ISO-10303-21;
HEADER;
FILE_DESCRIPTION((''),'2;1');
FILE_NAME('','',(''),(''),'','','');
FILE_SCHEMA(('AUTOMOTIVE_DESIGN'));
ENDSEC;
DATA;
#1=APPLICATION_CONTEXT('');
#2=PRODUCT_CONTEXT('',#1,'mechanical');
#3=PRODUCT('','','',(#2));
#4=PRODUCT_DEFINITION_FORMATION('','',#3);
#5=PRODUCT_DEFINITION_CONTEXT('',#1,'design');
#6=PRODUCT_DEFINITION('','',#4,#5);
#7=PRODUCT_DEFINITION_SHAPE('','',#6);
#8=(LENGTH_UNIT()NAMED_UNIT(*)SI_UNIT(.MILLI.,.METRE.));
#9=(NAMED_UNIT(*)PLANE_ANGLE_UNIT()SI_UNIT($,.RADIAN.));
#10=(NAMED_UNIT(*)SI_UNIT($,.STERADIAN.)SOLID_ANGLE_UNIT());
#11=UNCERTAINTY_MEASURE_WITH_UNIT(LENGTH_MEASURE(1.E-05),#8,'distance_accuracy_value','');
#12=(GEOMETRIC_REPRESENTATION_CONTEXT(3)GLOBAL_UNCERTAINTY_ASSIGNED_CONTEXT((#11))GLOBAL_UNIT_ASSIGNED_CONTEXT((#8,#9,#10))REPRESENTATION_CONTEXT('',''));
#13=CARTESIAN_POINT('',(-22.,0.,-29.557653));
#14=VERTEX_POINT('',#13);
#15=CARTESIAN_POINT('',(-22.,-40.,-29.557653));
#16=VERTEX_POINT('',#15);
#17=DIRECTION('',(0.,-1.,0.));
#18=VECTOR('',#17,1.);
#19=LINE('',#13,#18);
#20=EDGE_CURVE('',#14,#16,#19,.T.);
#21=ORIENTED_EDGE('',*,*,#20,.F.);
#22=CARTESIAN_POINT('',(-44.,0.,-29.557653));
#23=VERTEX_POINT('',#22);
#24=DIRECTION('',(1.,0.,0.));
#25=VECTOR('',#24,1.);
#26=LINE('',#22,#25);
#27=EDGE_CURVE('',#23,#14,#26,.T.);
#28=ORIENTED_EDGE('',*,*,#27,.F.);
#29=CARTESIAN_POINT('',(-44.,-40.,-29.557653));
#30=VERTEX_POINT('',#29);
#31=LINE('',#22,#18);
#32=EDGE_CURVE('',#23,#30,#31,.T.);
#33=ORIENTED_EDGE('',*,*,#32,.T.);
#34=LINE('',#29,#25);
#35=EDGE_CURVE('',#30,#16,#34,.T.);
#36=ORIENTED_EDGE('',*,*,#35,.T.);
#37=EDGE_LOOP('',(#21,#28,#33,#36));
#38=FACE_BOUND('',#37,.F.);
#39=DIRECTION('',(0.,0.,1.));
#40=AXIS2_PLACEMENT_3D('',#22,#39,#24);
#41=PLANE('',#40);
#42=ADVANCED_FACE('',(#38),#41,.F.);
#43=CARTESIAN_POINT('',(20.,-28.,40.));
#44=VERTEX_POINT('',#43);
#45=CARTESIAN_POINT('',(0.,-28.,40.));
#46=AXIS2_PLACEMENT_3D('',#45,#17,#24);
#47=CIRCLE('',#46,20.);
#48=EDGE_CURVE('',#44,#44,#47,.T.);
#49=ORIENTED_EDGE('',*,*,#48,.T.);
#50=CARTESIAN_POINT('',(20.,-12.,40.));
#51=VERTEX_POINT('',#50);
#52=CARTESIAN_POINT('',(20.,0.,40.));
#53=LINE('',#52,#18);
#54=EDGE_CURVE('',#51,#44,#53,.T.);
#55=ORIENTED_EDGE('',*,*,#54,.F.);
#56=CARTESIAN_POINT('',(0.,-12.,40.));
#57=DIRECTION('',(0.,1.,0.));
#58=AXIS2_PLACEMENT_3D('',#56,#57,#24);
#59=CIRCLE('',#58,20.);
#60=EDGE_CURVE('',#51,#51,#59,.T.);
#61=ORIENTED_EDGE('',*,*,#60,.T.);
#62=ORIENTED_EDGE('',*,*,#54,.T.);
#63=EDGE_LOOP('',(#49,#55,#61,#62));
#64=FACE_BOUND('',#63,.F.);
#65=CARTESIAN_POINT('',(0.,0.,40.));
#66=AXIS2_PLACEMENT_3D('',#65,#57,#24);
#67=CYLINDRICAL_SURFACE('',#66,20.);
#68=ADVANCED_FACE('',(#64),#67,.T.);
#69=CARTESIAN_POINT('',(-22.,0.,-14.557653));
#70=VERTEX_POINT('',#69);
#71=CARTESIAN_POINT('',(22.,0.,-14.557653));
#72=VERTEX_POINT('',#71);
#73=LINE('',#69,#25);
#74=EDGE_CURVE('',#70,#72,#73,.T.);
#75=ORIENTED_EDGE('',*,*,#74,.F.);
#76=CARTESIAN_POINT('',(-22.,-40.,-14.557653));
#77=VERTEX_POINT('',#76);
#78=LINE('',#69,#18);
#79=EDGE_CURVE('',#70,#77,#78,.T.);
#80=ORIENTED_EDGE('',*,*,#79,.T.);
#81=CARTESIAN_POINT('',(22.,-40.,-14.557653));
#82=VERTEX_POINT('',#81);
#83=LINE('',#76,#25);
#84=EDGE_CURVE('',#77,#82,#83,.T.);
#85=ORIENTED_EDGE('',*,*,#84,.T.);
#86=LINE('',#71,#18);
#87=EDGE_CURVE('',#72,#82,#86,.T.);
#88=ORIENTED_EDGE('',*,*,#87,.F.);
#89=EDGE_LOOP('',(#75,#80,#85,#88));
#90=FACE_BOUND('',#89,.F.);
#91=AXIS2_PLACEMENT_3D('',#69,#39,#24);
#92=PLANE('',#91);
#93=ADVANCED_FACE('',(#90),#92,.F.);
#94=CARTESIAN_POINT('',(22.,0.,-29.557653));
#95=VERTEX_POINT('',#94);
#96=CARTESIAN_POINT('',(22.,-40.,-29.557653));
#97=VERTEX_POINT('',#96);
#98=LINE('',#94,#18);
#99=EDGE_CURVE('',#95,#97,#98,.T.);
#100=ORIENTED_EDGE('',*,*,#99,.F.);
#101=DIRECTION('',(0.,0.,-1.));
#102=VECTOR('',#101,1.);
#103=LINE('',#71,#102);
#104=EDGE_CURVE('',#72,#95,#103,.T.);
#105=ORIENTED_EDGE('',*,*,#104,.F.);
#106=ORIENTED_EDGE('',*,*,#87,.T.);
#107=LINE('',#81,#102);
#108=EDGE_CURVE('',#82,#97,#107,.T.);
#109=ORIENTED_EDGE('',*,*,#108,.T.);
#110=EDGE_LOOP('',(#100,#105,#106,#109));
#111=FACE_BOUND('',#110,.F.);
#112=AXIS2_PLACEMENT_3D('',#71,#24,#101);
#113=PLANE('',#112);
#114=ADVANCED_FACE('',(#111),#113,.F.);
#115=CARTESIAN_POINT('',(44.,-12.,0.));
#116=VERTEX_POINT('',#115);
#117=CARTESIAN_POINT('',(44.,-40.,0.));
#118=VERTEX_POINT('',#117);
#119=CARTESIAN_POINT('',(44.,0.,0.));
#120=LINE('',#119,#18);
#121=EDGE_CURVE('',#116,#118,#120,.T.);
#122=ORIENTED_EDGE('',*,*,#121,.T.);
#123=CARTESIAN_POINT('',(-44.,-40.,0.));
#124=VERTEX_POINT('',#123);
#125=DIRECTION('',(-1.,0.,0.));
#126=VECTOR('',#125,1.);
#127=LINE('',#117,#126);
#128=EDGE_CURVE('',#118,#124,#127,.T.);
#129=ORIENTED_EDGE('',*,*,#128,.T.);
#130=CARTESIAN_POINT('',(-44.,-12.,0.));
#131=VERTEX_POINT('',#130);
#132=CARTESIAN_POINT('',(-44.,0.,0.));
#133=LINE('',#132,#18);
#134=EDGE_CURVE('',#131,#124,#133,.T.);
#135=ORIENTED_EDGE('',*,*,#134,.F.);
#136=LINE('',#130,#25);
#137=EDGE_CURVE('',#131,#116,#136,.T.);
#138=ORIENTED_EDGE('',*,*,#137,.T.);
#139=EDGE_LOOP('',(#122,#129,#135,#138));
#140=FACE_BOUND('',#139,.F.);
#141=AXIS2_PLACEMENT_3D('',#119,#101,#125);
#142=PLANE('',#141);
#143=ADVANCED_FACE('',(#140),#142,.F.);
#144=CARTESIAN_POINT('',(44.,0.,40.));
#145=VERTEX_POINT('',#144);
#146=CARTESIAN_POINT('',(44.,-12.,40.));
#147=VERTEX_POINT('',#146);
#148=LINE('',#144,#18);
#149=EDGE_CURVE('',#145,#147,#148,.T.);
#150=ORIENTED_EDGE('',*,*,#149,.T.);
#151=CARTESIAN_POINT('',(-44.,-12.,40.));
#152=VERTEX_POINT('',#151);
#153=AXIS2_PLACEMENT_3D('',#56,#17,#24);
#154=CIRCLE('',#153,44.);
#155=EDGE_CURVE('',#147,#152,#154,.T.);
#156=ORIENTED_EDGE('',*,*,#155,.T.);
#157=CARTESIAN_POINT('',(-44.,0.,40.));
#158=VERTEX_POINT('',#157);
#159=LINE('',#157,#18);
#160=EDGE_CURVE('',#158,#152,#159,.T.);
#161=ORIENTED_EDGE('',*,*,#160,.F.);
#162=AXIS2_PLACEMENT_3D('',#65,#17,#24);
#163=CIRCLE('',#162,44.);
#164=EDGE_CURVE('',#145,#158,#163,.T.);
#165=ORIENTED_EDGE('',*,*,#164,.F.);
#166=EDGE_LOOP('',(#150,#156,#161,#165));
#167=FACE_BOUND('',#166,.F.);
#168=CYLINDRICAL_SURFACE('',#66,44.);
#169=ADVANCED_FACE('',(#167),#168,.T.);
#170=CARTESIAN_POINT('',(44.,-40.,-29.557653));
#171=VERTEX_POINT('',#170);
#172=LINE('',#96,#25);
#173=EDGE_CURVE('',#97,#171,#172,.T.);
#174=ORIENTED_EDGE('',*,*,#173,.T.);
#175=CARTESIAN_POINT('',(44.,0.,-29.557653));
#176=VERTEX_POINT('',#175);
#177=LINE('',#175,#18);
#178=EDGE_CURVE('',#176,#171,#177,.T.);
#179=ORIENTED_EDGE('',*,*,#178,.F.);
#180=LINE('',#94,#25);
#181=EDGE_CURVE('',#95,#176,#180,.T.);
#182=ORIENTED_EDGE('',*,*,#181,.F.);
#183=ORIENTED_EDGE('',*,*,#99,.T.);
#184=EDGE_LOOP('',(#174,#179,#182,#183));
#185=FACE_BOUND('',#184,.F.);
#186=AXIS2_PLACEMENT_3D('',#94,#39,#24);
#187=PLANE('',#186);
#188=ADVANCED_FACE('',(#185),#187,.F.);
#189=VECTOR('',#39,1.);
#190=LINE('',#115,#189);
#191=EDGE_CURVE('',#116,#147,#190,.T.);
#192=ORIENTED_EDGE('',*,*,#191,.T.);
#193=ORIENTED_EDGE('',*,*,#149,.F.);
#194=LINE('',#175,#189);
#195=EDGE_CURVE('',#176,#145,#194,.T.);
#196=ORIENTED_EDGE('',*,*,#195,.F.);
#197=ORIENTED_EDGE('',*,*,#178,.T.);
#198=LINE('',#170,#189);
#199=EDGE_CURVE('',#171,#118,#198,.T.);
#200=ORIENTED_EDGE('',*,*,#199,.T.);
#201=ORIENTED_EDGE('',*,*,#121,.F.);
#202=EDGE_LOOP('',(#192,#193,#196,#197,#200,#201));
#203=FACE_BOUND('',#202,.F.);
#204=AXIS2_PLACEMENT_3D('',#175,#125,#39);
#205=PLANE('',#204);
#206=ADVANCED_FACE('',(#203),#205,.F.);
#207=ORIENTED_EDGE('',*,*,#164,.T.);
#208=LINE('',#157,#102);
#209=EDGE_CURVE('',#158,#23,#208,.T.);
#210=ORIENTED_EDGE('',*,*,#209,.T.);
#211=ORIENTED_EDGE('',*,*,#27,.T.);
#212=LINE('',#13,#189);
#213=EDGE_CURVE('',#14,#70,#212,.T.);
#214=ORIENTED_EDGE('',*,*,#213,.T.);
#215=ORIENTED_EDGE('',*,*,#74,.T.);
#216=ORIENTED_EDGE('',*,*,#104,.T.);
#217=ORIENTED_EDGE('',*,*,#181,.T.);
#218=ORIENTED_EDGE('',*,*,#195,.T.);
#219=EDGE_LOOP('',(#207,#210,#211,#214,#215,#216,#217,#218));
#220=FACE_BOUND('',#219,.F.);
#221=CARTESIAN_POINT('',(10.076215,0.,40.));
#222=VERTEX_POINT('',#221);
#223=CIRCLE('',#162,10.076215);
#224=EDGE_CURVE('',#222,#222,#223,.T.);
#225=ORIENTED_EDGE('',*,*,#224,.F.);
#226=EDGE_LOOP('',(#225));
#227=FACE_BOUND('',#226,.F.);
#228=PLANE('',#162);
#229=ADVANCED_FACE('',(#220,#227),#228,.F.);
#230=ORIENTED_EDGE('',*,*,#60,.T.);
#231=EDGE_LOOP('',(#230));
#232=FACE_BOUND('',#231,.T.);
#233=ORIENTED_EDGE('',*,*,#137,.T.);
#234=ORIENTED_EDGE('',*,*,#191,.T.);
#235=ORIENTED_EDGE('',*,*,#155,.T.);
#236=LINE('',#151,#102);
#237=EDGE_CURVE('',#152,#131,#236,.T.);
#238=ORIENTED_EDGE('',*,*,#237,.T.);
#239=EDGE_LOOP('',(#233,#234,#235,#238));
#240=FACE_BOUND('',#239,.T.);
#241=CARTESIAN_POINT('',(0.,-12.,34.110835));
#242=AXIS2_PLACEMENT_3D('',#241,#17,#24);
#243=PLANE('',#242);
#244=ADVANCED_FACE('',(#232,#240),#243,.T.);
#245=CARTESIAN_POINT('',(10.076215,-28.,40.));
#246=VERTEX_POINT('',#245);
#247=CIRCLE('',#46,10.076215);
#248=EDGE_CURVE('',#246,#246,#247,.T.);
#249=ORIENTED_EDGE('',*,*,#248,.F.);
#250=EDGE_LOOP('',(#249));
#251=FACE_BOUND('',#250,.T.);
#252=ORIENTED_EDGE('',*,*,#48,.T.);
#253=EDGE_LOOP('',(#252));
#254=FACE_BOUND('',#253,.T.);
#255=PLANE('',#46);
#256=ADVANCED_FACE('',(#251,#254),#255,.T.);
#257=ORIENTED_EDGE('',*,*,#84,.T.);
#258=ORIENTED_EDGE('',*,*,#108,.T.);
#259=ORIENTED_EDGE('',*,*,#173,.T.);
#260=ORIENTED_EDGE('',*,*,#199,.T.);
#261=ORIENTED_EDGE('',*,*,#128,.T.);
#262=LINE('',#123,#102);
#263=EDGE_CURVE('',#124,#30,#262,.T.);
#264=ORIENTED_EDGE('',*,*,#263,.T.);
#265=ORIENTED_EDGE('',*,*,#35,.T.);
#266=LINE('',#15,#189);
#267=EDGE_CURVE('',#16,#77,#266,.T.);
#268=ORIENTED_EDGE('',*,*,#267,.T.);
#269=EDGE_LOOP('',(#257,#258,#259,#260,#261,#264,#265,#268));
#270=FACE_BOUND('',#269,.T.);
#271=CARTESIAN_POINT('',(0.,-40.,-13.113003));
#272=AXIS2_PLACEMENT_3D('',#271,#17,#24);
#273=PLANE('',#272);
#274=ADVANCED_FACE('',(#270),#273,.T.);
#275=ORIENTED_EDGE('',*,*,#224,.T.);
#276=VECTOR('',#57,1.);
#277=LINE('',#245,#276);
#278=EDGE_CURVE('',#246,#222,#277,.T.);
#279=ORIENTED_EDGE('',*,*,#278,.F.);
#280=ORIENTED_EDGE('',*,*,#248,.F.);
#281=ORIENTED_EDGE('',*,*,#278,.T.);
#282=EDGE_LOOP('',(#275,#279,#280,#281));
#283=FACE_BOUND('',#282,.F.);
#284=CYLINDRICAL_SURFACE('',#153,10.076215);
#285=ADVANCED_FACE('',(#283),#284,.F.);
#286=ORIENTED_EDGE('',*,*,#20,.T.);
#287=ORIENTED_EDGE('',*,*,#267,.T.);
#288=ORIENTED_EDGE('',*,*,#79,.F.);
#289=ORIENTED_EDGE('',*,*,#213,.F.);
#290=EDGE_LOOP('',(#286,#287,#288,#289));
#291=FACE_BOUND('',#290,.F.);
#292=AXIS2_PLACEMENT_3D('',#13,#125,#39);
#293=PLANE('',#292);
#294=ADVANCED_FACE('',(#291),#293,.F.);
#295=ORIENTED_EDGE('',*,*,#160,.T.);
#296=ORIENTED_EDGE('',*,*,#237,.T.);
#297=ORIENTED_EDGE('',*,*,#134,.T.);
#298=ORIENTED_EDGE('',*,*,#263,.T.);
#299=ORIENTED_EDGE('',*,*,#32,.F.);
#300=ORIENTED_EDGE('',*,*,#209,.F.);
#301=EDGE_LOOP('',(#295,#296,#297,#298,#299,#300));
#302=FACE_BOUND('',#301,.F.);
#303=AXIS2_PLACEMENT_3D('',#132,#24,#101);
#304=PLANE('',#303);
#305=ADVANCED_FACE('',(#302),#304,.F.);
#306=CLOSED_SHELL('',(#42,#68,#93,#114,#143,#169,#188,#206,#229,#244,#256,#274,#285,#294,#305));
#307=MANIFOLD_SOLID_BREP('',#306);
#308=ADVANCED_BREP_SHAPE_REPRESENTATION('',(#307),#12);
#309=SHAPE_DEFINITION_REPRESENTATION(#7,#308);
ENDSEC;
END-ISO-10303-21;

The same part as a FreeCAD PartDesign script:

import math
import FreeCAD as App
import Part
import Sketcher

V = App.Vector


def add_polygon(sketch, points):
    """Adds a closed chain of lines whose ends are joined by coincident constraints."""
    first, n = sketch.GeometryCount, len(points)
    for a, b in zip(points, points[1:] + points[:1]):
        sketch.addGeometry(Part.LineSegment(App.Vector(*a, 0), App.Vector(*b, 0)), False)
    for i in range(n):
        sketch.addConstraint(Sketcher.Constraint("Coincident", first + i, 2, first + (i + 1) % n, 1))

doc = App.newDocument("Part")
body = doc.addObject("PartDesign::Body", "Body")

sketch1 = body.newObject("Sketcher::SketchObject", "Sketch")
sketch1.AttachmentSupport = (doc.getObject("XZ_Plane"), [""])
sketch1.MapMode = "FlatFace"
sketch1.addGeometry([
    Part.LineSegment(V(-44, 40, 0), V(-44, 0, 0)),
    Part.LineSegment(V(-44, 0, 0), V(44, 0, 0)),
    Part.LineSegment(V(44, 0, 0), V(44, 40, 0)),
    Part.ArcOfCircle(Part.Circle(V(0, 40, 0), V(0, 0, 1), 44), math.radians(0), math.radians(180)),
], False)
sketch1.addConstraint([
    Sketcher.Constraint("Coincident", 0, 2, 1, 1),
    Sketcher.Constraint("Coincident", 1, 2, 2, 1),
    Sketcher.Constraint("Tangent", 2, 2, 3, 1),
    Sketcher.Constraint("Tangent", 3, 2, 0, 1),
    Sketcher.Constraint("Vertical", 0),
    Sketcher.Constraint("Horizontal", 1),
    Sketcher.Constraint("Vertical", 2),
    Sketcher.Constraint("Symmetric", 0, 2, 1, 2, -1, 1),
    Sketcher.Constraint("Radius", 3, 44.0),
    Sketcher.Constraint("DistanceY", 0, 2, 0, 1, 40.0),
])
pad1 = body.newObject("PartDesign::Pad", "Pad")
pad1.Profile = sketch1
pad1.Length = 12

sketch2 = body.newObject("Sketcher::SketchObject", "Sketch001")
sketch2.AttachmentSupport = (doc.getObject("XZ_Plane"), [""])
sketch2.MapMode = "FlatFace"
add_polygon(sketch2, [(44, 0), (-44, 0), (-44, -29.557653), (-22, -29.557653), (-22, -14.557653), (22, -14.557653), (22, -29.557653), (44, -29.557653)])
sketch2.addConstraint([
    Sketcher.Constraint("Horizontal", 0),
    Sketcher.Constraint("Vertical", 1),
    Sketcher.Constraint("Horizontal", 2),
    Sketcher.Constraint("Vertical", 3),
    Sketcher.Constraint("Horizontal", 4),
    Sketcher.Constraint("Vertical", 5),
    Sketcher.Constraint("Horizontal", 6),
    Sketcher.Constraint("Vertical", 7),
    Sketcher.Constraint("Symmetric", 0, 2, 7, 2, -1, 1),
    Sketcher.Constraint("Symmetric", 2, 2, 5, 2, -2),
    Sketcher.Constraint("DistanceX", 0, 2, 0, 1, 88.0),
    Sketcher.Constraint("DistanceX", 2, 1, 2, 2, 22.0),
    Sketcher.Constraint("DistanceY", 3, 1, 3, 2, 15.0),
    Sketcher.Constraint("DistanceY", 1, 2, 1, 1, 29.557653),
])
pad2 = body.newObject("PartDesign::Pad", "Pad001")
pad2.Profile = sketch2
pad2.Length = 40

sketch3 = body.newObject("Sketcher::SketchObject", "Sketch002")
sketch3.AttachmentSupport = (doc.getObject("XZ_Plane"), [""])
sketch3.MapMode = "FlatFace"
sketch3.addGeometry([
    Part.Circle(V(0, 40, 0), V(0, 0, 1), 20),
    Part.Circle(V(0, 40, 0), V(0, 0, 1), 10.076215),
], False)
sketch3.addConstraint([
    Sketcher.Constraint("Coincident", 1, 3, 0, 3),
    Sketcher.Constraint("PointOnObject", 0, 3, -2),
    Sketcher.Constraint("Diameter", 0, 40.0),
    Sketcher.Constraint("DistanceY", -1, 1, 0, 3, 40.0),
    Sketcher.Constraint("Diameter", 1, 20.15243),
])
pad3 = body.newObject("PartDesign::Pad", "Pad002")
pad3.Profile = sketch3
pad3.Length = 28

sketch4 = body.newObject("Sketcher::SketchObject", "Sketch003")
sketch4.AttachmentSupport = (doc.getObject("XZ_Plane"), [""])
sketch4.MapMode = "FlatFace"
sketch4.AttachmentOffset = App.Placement(V(0, 0, 12), App.Rotation())
sketch4.addGeometry(Part.Circle(V(0, 40, 0), V(0, 0, 1), 10.076215), False)
sketch4.addConstraint([
    Sketcher.Constraint("PointOnObject", 0, 3, -2),
    Sketcher.Constraint("DistanceY", -1, 1, 0, 3, 40.0),
    Sketcher.Constraint("Diameter", 0, 20.15243),
])
pocket1 = body.newObject("PartDesign::Pocket", "Pocket")
pocket1.Profile = sketch4
pocket1.Length = 25

doc.recompute()
